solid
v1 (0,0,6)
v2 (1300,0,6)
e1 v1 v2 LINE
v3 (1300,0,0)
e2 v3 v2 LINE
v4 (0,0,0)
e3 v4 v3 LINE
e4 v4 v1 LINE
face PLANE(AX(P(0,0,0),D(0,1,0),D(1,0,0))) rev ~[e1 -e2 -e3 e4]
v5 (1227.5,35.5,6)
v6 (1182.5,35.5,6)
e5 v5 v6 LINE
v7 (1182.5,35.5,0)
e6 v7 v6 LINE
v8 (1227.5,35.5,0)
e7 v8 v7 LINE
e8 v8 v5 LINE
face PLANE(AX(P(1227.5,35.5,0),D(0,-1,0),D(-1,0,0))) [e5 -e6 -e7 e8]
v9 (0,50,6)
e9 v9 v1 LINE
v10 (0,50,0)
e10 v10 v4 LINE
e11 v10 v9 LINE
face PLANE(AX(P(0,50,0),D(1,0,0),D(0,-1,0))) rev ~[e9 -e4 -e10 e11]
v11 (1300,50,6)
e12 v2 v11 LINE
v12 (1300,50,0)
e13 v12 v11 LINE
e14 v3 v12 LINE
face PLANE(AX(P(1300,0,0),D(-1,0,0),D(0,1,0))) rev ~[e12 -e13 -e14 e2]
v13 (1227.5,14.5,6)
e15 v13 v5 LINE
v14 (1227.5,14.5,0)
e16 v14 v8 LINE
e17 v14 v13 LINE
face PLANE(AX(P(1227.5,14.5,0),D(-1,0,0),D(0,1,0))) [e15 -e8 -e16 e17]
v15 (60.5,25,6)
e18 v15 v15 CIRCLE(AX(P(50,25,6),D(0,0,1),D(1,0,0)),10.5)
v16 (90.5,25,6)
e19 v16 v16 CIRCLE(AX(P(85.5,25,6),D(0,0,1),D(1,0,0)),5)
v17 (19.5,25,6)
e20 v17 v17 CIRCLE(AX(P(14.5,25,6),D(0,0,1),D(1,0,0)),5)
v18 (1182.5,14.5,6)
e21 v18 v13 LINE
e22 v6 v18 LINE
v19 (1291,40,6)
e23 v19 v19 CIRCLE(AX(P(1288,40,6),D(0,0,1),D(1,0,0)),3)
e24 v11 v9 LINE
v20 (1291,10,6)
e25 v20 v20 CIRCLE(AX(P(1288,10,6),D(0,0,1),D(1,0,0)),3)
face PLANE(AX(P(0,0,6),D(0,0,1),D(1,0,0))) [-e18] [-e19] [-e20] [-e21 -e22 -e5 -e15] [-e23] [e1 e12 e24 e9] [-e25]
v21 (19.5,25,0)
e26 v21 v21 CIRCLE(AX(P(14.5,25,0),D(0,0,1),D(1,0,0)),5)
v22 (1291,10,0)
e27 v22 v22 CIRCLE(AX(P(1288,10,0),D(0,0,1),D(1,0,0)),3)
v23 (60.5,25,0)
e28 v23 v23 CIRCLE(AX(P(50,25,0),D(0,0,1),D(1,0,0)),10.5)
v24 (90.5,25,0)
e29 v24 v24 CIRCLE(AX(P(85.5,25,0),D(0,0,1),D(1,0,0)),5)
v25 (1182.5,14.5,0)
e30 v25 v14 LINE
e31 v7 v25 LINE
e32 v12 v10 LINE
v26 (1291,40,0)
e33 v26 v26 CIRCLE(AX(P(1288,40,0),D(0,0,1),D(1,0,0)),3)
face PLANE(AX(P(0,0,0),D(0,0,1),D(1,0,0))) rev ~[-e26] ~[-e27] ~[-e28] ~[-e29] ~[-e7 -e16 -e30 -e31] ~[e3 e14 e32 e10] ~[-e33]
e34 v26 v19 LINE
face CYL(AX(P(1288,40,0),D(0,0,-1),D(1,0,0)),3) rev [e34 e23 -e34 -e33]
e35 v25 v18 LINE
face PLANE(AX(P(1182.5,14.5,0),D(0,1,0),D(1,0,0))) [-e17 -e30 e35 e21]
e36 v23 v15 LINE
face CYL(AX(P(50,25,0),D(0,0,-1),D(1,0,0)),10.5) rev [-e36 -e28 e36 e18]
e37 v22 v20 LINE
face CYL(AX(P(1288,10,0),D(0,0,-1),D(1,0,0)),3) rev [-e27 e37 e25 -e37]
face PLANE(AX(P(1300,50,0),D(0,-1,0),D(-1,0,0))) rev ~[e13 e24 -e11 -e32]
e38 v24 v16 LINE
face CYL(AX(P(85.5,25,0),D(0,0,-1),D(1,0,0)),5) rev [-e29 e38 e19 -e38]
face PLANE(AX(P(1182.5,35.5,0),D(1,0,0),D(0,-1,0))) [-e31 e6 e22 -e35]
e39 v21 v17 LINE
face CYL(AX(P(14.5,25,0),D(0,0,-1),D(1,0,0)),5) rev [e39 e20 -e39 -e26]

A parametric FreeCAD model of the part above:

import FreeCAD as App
import Part
import Sketcher

V = App.Vector


def add_polygon(sketch, points):
    """Adds a closed chain of lines whose ends are joined by coincident constraints."""
    first, n = sketch.GeometryCount, len(points)
    for a, b in zip(points, points[1:] + points[:1]):
        sketch.addGeometry(Part.LineSegment(App.Vector(*a, 0), App.Vector(*b, 0)), False)
    for i in range(n):
        sketch.addConstraint(Sketcher.Constraint("Coincident", first + i, 2, first + (i + 1) % n, 1))

doc = App.newDocument("Part")
params = doc.addObject("Spreadsheet::Sheet", "Params")
for row, (alias, value) in enumerate([
    ("sketch1_diameter", "6 mm"),
    ("sketch1_diameter2", "10 mm"),
    ("sketch1_diameter3", "21 mm"),
    ("sketch1_width", "1300 mm"),
    ("sketch1_width2", "45 mm"),
    ("pad1_length", "6 mm"),
], start=1):
    params.set(f"A{row}", alias)
    params.set(f"B{row}", "=" + value)
    params.setAlias(f"B{row}", alias)

body = doc.addObject("PartDesign::Body", "Body")

# Sketch on XY plane
sketch1 = body.newObject("Sketcher::SketchObject", "Sketch")
sketch1.AttachmentSupport = (doc.getObject("XY_Plane"), [""])
sketch1.MapMode = "FlatFace"
add_polygon(sketch1, [(0, 50), (0, 0), (1300, 0), (1300, 50)])  # lines 0-3
sketch1.addGeometry(Part.Circle(V(1288, 10, 0), V(0, 0, 1), 3), False)  # 4
sketch1.addGeometry(Part.Circle(V(14.5, 25, 0), V(0, 0, 1), 5), False)  # 5
sketch1.addGeometry(Part.Circle(V(50, 25, 0), V(0, 0, 1), 10.5), False)  # 6
sketch1.addGeometry(Part.Circle(V(85.5, 25, 0), V(0, 0, 1), 5), False)  # 7
add_polygon(sketch1, [(1227.5, 14.5), (1182.5, 14.5), (1182.5, 35.5), (1227.5, 35.5)])  # lines 8-11
sketch1.addGeometry(Part.Circle(V(1288, 40, 0), V(0, 0, 1), 3), False)  # 12
sketch1.addConstraint([
    Sketcher.Constraint("Vertical", 0),
    Sketcher.Constraint("Horizontal", 1),
    Sketcher.Constraint("Vertical", 2),
    Sketcher.Constraint("Horizontal", 3),
    Sketcher.Constraint("Horizontal", 8),
    Sketcher.Constraint("Vertical", 9),
    Sketcher.Constraint("Horizontal", 10),
    Sketcher.Constraint("Vertical", 11),
    Sketcher.Constraint("Coincident", 0, 2, -1, 1),
    Sketcher.Constraint("Equal", 5, 7),
    Sketcher.Constraint("Equal", 4, 12),
    Sketcher.Constraint("Horizontal", 5, 3, 6, 3),
    Sketcher.Constraint("Horizontal", 6, 3, 7, 3),
    Sketcher.Constraint("Vertical", 4, 3, 12, 3),
    Sketcher.Constraint("Diameter", 4, 6.0),
    Sketcher.Constraint("Diameter", 5, 10.0),
    Sketcher.Constraint("Diameter", 6, 21.0),
    Sketcher.Constraint("DistanceX", 1, 1, 1, 2, 1300.0),
    Sketcher.Constraint("DistanceX", 8, 2, 8, 1, 45.0),
    Sketcher.Constraint("DistanceY", 0, 2, 0, 1, 50.0),
    Sketcher.Constraint("DistanceY", 9, 1, 9, 2, 21.0),
    Sketcher.Constraint("DistanceY", -1, 1, 4, 3, 10.0),
    Sketcher.Constraint("DistanceX", -1, 1, 6, 3, 50.0),
    Sketcher.Constraint("DistanceY", 12, 3, 2, 2, 10.0),
    Sketcher.Constraint("DistanceX", -1, 1, 5, 3, 14.5),
    Sketcher.Constraint("DistanceY", -1, 1, 8, 2, 14.5),
    Sketcher.Constraint("DistanceX", 10, 2, 2, 2, 72.5),
    Sketcher.Constraint("DistanceX", -1, 1, 4, 3, 1288.0),
    Sketcher.Constraint("DistanceY", -1, 1, 5, 3, 25.0),
    Sketcher.Constraint("DistanceX", 5, 3, 7, 3, 71.0),
])
sketch1.setExpression("Constraints[22]", "Params.sketch1_diameter")
sketch1.setExpression("Constraints[23]", "Params.sketch1_diameter2")
sketch1.setExpression("Constraints[24]", "Params.sketch1_diameter3")
sketch1.setExpression("Constraints[25]", "Params.sketch1_width")
sketch1.setExpression("Constraints[26]", "Params.sketch1_width2")
pad1 = body.newObject("PartDesign::Pad", "Pad")
pad1.Profile = sketch1
pad1.setExpression("Length", "Params.pad1_length")

doc.recompute()
